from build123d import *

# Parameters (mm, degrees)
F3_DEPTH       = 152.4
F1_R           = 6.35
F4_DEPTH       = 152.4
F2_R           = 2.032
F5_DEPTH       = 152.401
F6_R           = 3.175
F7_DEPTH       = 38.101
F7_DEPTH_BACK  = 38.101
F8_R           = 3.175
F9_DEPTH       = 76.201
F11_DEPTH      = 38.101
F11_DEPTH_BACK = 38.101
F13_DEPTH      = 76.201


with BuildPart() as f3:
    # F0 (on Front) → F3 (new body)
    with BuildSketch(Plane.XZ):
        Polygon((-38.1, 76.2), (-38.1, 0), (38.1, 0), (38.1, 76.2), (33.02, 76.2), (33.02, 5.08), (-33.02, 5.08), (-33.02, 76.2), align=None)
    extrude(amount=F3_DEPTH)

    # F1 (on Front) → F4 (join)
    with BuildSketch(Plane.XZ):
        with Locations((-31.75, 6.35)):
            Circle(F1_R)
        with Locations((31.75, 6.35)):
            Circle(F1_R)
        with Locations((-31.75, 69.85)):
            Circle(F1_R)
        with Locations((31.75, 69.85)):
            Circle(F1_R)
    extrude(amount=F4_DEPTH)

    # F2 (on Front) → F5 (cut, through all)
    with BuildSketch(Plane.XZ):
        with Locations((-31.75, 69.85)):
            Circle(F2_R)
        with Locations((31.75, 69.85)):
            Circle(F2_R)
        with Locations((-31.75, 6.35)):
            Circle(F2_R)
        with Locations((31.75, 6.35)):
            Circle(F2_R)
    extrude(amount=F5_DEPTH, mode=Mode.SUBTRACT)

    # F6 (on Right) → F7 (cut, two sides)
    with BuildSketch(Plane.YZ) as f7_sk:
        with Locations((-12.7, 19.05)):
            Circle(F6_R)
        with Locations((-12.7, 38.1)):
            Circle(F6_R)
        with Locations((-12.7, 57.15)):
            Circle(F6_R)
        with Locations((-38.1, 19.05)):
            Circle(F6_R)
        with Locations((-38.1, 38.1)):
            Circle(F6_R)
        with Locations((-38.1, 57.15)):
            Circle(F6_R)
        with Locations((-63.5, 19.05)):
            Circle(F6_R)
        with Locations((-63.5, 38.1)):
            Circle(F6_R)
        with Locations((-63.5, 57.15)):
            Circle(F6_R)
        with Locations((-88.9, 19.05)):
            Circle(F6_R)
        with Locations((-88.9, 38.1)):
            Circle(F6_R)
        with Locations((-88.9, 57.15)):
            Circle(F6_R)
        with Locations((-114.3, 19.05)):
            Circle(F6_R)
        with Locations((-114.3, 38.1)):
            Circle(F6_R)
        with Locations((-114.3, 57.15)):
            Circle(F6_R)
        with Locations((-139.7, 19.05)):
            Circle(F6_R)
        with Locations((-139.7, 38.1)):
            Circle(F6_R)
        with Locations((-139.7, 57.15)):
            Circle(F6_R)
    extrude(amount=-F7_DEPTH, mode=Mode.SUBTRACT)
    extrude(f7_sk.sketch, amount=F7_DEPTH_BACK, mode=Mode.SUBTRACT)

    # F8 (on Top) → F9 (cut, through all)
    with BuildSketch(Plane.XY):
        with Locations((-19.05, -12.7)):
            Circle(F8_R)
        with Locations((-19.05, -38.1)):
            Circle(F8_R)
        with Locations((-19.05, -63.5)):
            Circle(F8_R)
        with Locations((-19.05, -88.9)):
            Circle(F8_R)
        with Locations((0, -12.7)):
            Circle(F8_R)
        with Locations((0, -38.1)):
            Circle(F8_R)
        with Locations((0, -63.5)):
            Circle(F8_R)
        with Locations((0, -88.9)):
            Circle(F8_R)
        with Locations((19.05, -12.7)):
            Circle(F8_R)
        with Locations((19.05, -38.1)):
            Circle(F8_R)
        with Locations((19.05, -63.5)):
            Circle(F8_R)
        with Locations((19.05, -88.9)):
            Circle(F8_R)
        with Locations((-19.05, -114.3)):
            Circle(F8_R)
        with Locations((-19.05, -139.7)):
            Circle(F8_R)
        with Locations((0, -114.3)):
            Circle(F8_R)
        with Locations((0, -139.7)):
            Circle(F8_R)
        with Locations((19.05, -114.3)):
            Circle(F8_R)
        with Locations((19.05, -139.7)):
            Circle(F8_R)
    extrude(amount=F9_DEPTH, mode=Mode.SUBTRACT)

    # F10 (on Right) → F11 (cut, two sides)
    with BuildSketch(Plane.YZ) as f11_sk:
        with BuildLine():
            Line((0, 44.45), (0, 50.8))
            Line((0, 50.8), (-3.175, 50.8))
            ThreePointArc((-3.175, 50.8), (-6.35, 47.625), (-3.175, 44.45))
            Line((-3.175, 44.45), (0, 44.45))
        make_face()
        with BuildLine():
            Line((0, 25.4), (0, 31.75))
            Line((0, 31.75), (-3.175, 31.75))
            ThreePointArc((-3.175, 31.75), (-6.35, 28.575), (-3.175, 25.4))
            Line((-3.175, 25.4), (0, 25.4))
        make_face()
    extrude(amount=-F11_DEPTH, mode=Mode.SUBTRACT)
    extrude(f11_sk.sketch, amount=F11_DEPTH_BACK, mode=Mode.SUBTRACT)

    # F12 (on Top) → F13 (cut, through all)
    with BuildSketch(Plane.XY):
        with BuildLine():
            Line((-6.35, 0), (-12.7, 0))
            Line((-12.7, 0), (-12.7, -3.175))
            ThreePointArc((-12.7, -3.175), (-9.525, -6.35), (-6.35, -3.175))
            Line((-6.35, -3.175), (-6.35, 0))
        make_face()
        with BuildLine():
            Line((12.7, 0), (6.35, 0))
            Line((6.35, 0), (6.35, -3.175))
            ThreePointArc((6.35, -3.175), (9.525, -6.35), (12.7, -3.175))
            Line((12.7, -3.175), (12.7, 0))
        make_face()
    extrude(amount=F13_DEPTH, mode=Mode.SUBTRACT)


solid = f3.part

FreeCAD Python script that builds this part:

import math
import FreeCAD as App
import Part
import Sketcher
from FreeCAD import Vector
Q = App.Units.Quantity

doc = App.newDocument("Part")
body = doc.addObject("PartDesign::Body", "Body")

sketch1 = body.newObject("Sketcher::SketchObject", "Sketch")
sketch1.AttachmentSupport = (doc.getObject("XZ_Plane"), [""])
sketch1.MapMode = "FlatFace"
sketch1.addGeometry([
    Part.LineSegment(Vector(-38, 76, 0), Vector(-38, 0, 0)),
    Part.LineSegment(Vector(-38, 0, 0), Vector(38, 0, 0)),
    Part.LineSegment(Vector(38, 0, 0), Vector(38, 76, 0)),
    Part.LineSegment(Vector(38, 76, 0), Vector(33, 76, 0)),
    Part.LineSegment(Vector(33, 76, 0), Vector(33, 5, 0)),
    Part.LineSegment(Vector(33, 5, 0), Vector(-33, 5, 0)),
    Part.LineSegment(Vector(-33, 5, 0), Vector(-33, 76, 0)),
    Part.LineSegment(Vector(-33, 76, 0), Vector(-38, 76, 0)),
], False)
sketch1.addConstraint([
    Sketcher.Constraint("Coincident", 0, 2, 1, 1),
    Sketcher.Constraint("Coincident", 1, 2, 2, 1),
    Sketcher.Constraint("Coincident", 2, 2, 3, 1),
    Sketcher.Constraint("Coincident", 3, 2, 4, 1),
    Sketcher.Constraint("Coincident", 4, 2, 5, 1),
    Sketcher.Constraint("Coincident", 5, 2, 6, 1),
    Sketcher.Constraint("Coincident", 6, 2, 7, 1),
    Sketcher.Constraint("Coincident", 7, 2, 0, 1),
    Sketcher.Constraint("Vertical", 0),
    Sketcher.Constraint("Horizontal", 1),
    Sketcher.Constraint("Vertical", 2),
    Sketcher.Constraint("Horizontal", 3),
    Sketcher.Constraint("Vertical", 4),
    Sketcher.Constraint("Horizontal", 5),
    Sketcher.Constraint("Vertical", 6),
    Sketcher.Constraint("Horizontal", 7),
    Sketcher.Constraint("Symmetric", 0, 2, 1, 2, -1, 1),
    Sketcher.Constraint("Symmetric", 3, 2, 6, 2, -2),
    Sketcher.Constraint("Equal", 1, 0),
    Sketcher.Constraint("DistanceX", 1, 1, 1, 2, Q("3 in")),
    Sketcher.Constraint("DistanceX", 3, 2, 3, 1, Q("0.2 in")),
    Sketcher.Constraint("DistanceY", 4, 2, 4, 1, Q("2.8 in")),
])
pad1 = body.newObject("PartDesign::Pad", "Pad")
pad1.Profile = sketch1
pad1.Length = Q("6 in")

sketch2 = body.newObject("Sketcher::SketchObject", "Sketch001")
sketch2.AttachmentSupport = (doc.getObject("XZ_Plane"), [""])
sketch2.MapMode = "FlatFace"
sketch2.addGeometry([
    Part.Circle(Vector(-32, 6, 0), Vector(0, 0, 1), 6),
    Part.Circle(Vector(32, 6, 0), Vector(0, 0, 1), 6),
    Part.Circle(Vector(-32, 70, 0), Vector(0, 0, 1), 6),
    Part.Circle(Vector(32, 70, 0), Vector(0, 0, 1), 6),
], False)
sketch2.addConstraint([
    Sketcher.Constraint("Equal", 0, 1),
    Sketcher.Constraint("Equal", 1, 2),
    Sketcher.Constraint("Equal", 2, 3),
    Sketcher.Constraint("Symmetric", 0, 3, 1, 3, -2),
    Sketcher.Constraint("Symmetric", 2, 3, 3, 3, -2),
    Sketcher.Constraint("Vertical", 0, 3, 2, 3),
    Sketcher.Constraint("Diameter", 0, Q("0.5 in")),
    Sketcher.Constraint("DistanceX", 0, 3, 1, 3, Q("2.5 in")),
    Sketcher.Constraint("DistanceY", 0, 3, 2, 3, Q("2.5 in")),
    Sketcher.Constraint("DistanceY", -1, 1, 0, 3, Q("0.25 in")),
])
pad2 = body.newObject("PartDesign::Pad", "Pad001")
pad2.Profile = sketch2
pad2.Length = Q("6 in")

sketch3 = body.newObject("Sketcher::SketchObject", "Sketch002")
sketch3.AttachmentSupport = (doc.getObject("XZ_Plane"), [""])
sketch3.MapMode = "FlatFace"
sketch3.addGeometry([
    Part.Circle(Vector(-31.8, 69.8, 0), Vector(0, 0, 1), 2),
    Part.Circle(Vector(31.8, 69.8, 0), Vector(0, 0, 1), 2),
    Part.Circle(Vector(-31.8, 6.3, 0), Vector(0, 0, 1), 2),
    Part.Circle(Vector(31.8, 6.3, 0), Vector(0, 0, 1), 2),
], False)
sketch3.addConstraint([
    Sketcher.Constraint("Equal", 0, 1),
    Sketcher.Constraint("Equal", 1, 2),
    Sketcher.Constraint("Equal", 2, 3),
    Sketcher.Constraint("Symmetric", 0, 3, 1, 3, -2),
    Sketcher.Constraint("Symmetric", 2, 3, 3, 3, -2),
    Sketcher.Constraint("Vertical", 0, 3, 2, 3),
    Sketcher.Constraint("Diameter", 0, Q("0.16 in")),
    Sketcher.Constraint("DistanceX", 0, 3, 1, 3, Q("2.5 in")),
    Sketcher.Constraint("DistanceY", 2, 3, 0, 3, Q("2.5 in")),
    Sketcher.Constraint("DistanceY", -1, 1, 0, 3, Q("2.75 in")),
])
pocket1 = body.newObject("PartDesign::Pocket", "Pocket")
pocket1.Profile = sketch3
pocket1.Type = "ThroughAll"
pocket1.Reversed = True

sketch4 = body.newObject("Sketcher::SketchObject", "Sketch003")
sketch4.AttachmentSupport = (doc.getObject("YZ_Plane"), [""])
sketch4.MapMode = "FlatFace"
sketch4.addGeometry([
    Part.Circle(Vector(-12.7, 19.1, 0), Vector(0, 0, 1), 3.2),
    Part.Circle(Vector(-12.7, 38.1, 0), Vector(0, 0, 1), 3.2),
    Part.Circle(Vector(-12.7, 57.1, 0), Vector(0, 0, 1), 3.2),
    Part.Circle(Vector(-38.1, 19.1, 0), Vector(0, 0, 1), 3.2),
    Part.Circle(Vector(-38.1, 38.1, 0), Vector(0, 0, 1), 3.2),
    Part.Circle(Vector(-38.1, 57.1, 0), Vector(0, 0, 1), 3.2),
    Part.Circle(Vector(-63.5, 19.1, 0), Vector(0, 0, 1), 3.2),
    Part.Circle(Vector(-63.5, 38.1, 0), Vector(0, 0, 1), 3.2),
    Part.Circle(Vector(-63.5, 57.1, 0), Vector(0, 0, 1), 3.2),
    Part.Circle(Vector(-88.9, 19.1, 0), Vector(0, 0, 1), 3.2),
    Part.Circle(Vector(-88.9, 38.1, 0), Vector(0, 0, 1), 3.2),
    Part.Circle(Vector(-88.9, 57.1, 0), Vector(0, 0, 1), 3.2),
    Part.Circle(Vector(-114.3, 19.1, 0), Vector(0, 0, 1), 3.2),
    Part.Circle(Vector(-114.3, 38.1, 0), Vector(0, 0, 1), 3.2),
    Part.Circle(Vector(-114.3, 57.1, 0), Vector(0, 0, 1), 3.2),
    Part.Circle(Vector(-139.7, 19.1, 0), Vector(0, 0, 1), 3.2),
    Part.Circle(Vector(-139.7, 38.1, 0), Vector(0, 0, 1), 3.2),
    Part.Circle(Vector(-139.7, 57.1, 0), Vector(0, 0, 1), 3.2),
], False)
sketch4.addConstraint([
    Sketcher.Constraint("Equal", 0, 1),
    Sketcher.Constraint("Equal", 1, 2),
    Sketcher.Constraint("Equal", 2, 3),
    Sketcher.Constraint("Equal", 3, 4),
    Sketcher.Constraint("Equal", 4, 5),
    Sketcher.Constraint("Equal", 5, 6),
    Sketcher.Constraint("Equal", 6, 7),
    Sketcher.Constraint("Equal", 7, 8),
    Sketcher.Constraint("Equal", 8, 9),
    Sketcher.Constraint("Equal", 9, 10),
    Sketcher.Constraint("Equal", 10, 11),
    Sketcher.Constraint("Equal", 11, 12),
    Sketcher.Constraint("Equal", 12, 13),
    Sketcher.Constraint("Equal", 13, 14),
    Sketcher.Constraint("Equal", 14, 15),
    Sketcher.Constraint("Equal", 15, 16),
    Sketcher.Constraint("Equal", 16, 17),
    Sketcher.Constraint("Horizontal", 0, 3, 3, 3),
    Sketcher.Constraint("Horizontal", 1, 3, 4, 3),
    Sketcher.Constraint("Horizontal", 2, 3, 5, 3),
    Sketcher.Constraint("Horizontal", 3, 3, 6, 3),
    Sketcher.Constraint("Horizontal", 4, 3, 7, 3),
    Sketcher.Constraint("Horizontal", 5, 3, 8, 3),
    Sketcher.Constraint("Horizontal", 6, 3, 9, 3),
    Sketcher.Constraint("Horizontal", 7, 3, 10, 3),
    Sketcher.Constraint("Horizontal", 8, 3, 11, 3),
    Sketcher.Constraint("Horizontal", 9, 3, 12, 3),
    Sketcher.Constraint("Horizontal", 10, 3, 13, 3),
    Sketcher.Constraint("Horizontal", 11, 3, 14, 3),
    Sketcher.Constraint("Horizontal", 12, 3, 15, 3),
    Sketcher.Constraint("Horizontal", 13, 3, 16, 3),
    Sketcher.Constraint("Horizontal", 14, 3, 17, 3),
    Sketcher.Constraint("Vertical", 0, 3, 1, 3),
    Sketcher.Constraint("Vertical", 1, 3, 2, 3),
    Sketcher.Constraint("Vertical", 3, 3, 4, 3),
    Sketcher.Constraint("Vertical", 4, 3, 5, 3),
    Sketcher.Constraint("Vertical", 6, 3, 7, 3),
    Sketcher.Constraint("Vertical", 7, 3, 8, 3),
    Sketcher.Constraint("Vertical", 9, 3, 10, 3),
    Sketcher.Constraint("Vertical", 10, 3, 11, 3),
    Sketcher.Constraint("Vertical", 12, 3, 13, 3),
    Sketcher.Constraint("Vertical", 13, 3, 14, 3),
    Sketcher.Constraint("Vertical", 15, 3, 16, 3),
    Sketcher.Constraint("Vertical", 16, 3, 17, 3),
    Sketcher.Constraint("Diameter", 0, Q("0.25 in")),
    Sketcher.Constraint("DistanceX", 3, 3, 0, 3, Q("1 in")),
    Sketcher.Constraint("DistanceX", 6, 3, 3, 3, Q("1 in")),
    Sketcher.Constraint("DistanceX", 9, 3, 6, 3, Q("1 in")),
    Sketcher.Constraint("DistanceX", 12, 3, 9, 3, Q("1 in")),
    Sketcher.Constraint("DistanceX", 15, 3, 12, 3, Q("1 in")),
    Sketcher.Constraint("DistanceX", 0, 3, -1, 1, Q("0.5 in")),
    Sketcher.Constraint("DistanceY", -1, 1, 1, 3, Q("1.5 in")),
    Sketcher.Constraint("DistanceY", 0, 3, 2, 3, Q("1.5 in")),
    Sketcher.Constraint("DistanceY", -1, 1, 0, 3, Q("0.75 in")),
])
pocket2 = body.newObject("PartDesign::Pocket", "Pocket001")
pocket2.Profile = sketch4
pocket2.Type = "ThroughAll"
pocket2.Midplane = True

sketch5 = body.newObject("Sketcher::SketchObject", "Sketch004")
sketch5.AttachmentSupport = (doc.getObject("XY_Plane"), [""])
sketch5.MapMode = "FlatFace"
sketch5.addGeometry([
    Part.Circle(Vector(-19.1, -12.7, 0), Vector(0, 0, 1), 3.2),
    Part.Circle(Vector(-19.1, -38.1, 0), Vector(0, 0, 1), 3.2),
    Part.Circle(Vector(-19.1, -63.5, 0), Vector(0, 0, 1), 3.2),
    Part.Circle(Vector(-19.1, -88.9, 0), Vector(0, 0, 1), 3.2),
    Part.Circle(Vector(0, -12.7, 0), Vector(0, 0, 1), 3.2),
    Part.Circle(Vector(0, -38.1, 0), Vector(0, 0, 1), 3.2),
    Part.Circle(Vector(0, -63.5, 0), Vector(0, 0, 1), 3.2),
    Part.Circle(Vector(0, -88.9, 0), Vector(0, 0, 1), 3.2),
    Part.Circle(Vector(19.1, -12.7, 0), Vector(0, 0, 1), 3.2),
    Part.Circle(Vector(19.1, -38.1, 0), Vector(0, 0, 1), 3.2),
    Part.Circle(Vector(19.1, -63.5, 0), Vector(0, 0, 1), 3.2),
    Part.Circle(Vector(19.1, -88.9, 0), Vector(0, 0, 1), 3.2),
    Part.Circle(Vector(-19.1, -114.3, 0), Vector(0, 0, 1), 3.2),
    Part.Circle(Vector(-19.1, -139.7, 0), Vector(0, 0, 1), 3.2),
    Part.Circle(Vector(0, -114.3, 0), Vector(0, 0, 1), 3.2),
    Part.Circle(Vector(0, -139.7, 0), Vector(0, 0, 1), 3.2),
    Part.Circle(Vector(19.1, -114.3, 0), Vector(0, 0, 1), 3.2),
    Part.Circle(Vector(19.1, -139.7, 0), Vector(0, 0, 1), 3.2),
], False)
sketch5.addConstraint([
    Sketcher.Constraint("Equal", 0, 1),
    Sketcher.Constraint("Equal", 1, 2),
    Sketcher.Constraint("Equal", 2, 3),
    Sketcher.Constraint("Equal", 3, 4),
    Sketcher.Constraint("Equal", 4, 5),
    Sketcher.Constraint("Equal", 5, 6),
    Sketcher.Constraint("Equal", 6, 7),
    Sketcher.Constraint("Equal", 7, 8),
    Sketcher.Constraint("Equal", 8, 9),
    Sketcher.Constraint("Equal", 9, 10),
    Sketcher.Constraint("Equal", 10, 11),
    Sketcher.Constraint("Equal", 11, 12),
    Sketcher.Constraint("Equal", 12, 13),
    Sketcher.Constraint("Equal", 13, 14),
    Sketcher.Constraint("Equal", 14, 15),
    Sketcher.Constraint("Equal", 15, 16),
    Sketcher.Constraint("Equal", 16, 17),
    Sketcher.Constraint("Symmetric", 0, 3, 8, 3, -2),
    Sketcher.Constraint("Symmetric", 1, 3, 9, 3, -2),
    Sketcher.Constraint("Symmetric", 2, 3, 10, 3, -2),
    Sketcher.Constraint("Symmetric", 3, 3, 11, 3, -2),
    Sketcher.Constraint("Symmetric", 12, 3, 16, 3, -2),
    Sketcher.Constraint("Symmetric", 13, 3, 17, 3, -2),
    Sketcher.Constraint("PointOnObject", 4, 3, -2),
    Sketcher.Constraint("PointOnObject", 5, 3, -2),
    Sketcher.Constraint("PointOnObject", 6, 3, -2),
    Sketcher.Constraint("PointOnObject", 7, 3, -2),
    Sketcher.Constraint("PointOnObject", 14, 3, -2),
    Sketcher.Constraint("PointOnObject", 15, 3, -2),
    Sketcher.Constraint("Horizontal", 0, 3, 4, 3),
    Sketcher.Constraint("Horizontal", 1, 3, 5, 3),
    Sketcher.Constraint("Horizontal", 2, 3, 6, 3),
    Sketcher.Constraint("Horizontal", 3, 3, 7, 3),
    Sketcher.Constraint("Horizontal", 12, 3, 14, 3),
    Sketcher.Constraint("Horizontal", 13, 3, 15, 3),
    Sketcher.Constraint("Vertical", 0, 3, 1, 3),
    Sketcher.Constraint("Vertical", 1, 3, 2, 3),
    Sketcher.Constraint("Vertical", 2, 3, 3, 3),
    Sketcher.Constraint("Vertical", 3, 3, 12, 3),
    Sketcher.Constraint("Vertical", 12, 3, 13, 3),
    Sketcher.Constraint("Diameter", 0, Q("0.25 in")),
    Sketcher.Constraint("DistanceY", 1, 3, 0, 3, Q("1 in")),
    Sketcher.Constraint("DistanceY", 2, 3, 1, 3, Q("1 in")),
    Sketcher.Constraint("DistanceY", 3, 3, 2, 3, Q("1 in")),
    Sketcher.Constraint("DistanceY", 12, 3, 3, 3, Q("1 in")),
    Sketcher.Constraint("DistanceY", 13, 3, 12, 3, Q("1 in")),
    Sketcher.Constraint("DistanceY", 0, 3, -1, 1, Q("0.5 in")),
    Sketcher.Constraint("DistanceX", 0, 3, 8, 3, Q("1.5 in")),
])
pocket3 = body.newObject("PartDesign::Pocket", "Pocket002")
pocket3.Profile = sketch5
pocket3.Type = "ThroughAll"
pocket3.Reversed = True

sketch6 = body.newObject("Sketcher::SketchObject", "Sketch005")
sketch6.AttachmentSupport = (doc.getObject("YZ_Plane"), [""])
sketch6.MapMode = "FlatFace"
sketch6.addGeometry([
    Part.LineSegment(Vector(0, 44.5, 0), Vector(0, 50.8, 0)),
    Part.LineSegment(Vector(0, 50.8, 0), Vector(-3.2, 50.8, 0)),
    Part.ArcOfCircle(Part.Circle(Vector(-3.2, 47.6, 0), Vector(0, 0, 1), 3.2), math.radians(90), math.radians(270)),
    Part.LineSegment(Vector(-3.2, 44.5, 0), Vector(0, 44.5, 0)),
    Part.LineSegment(Vector(0, 25.4, 0), Vector(0, 31.8, 0)),
    Part.LineSegment(Vector(0, 31.8, 0), Vector(-3.2, 31.8, 0)),
    Part.ArcOfCircle(Part.Circle(Vector(-3.2, 28.6, 0), Vector(0, 0, 1), 3.2), math.radians(90), math.radians(270)),
    Part.LineSegment(Vector(-3.2, 25.4, 0), Vector(0, 25.4, 0)),
], False)
sketch6.addConstraint([
    Sketcher.Constraint("Coincident", 0, 2, 1, 1),
    Sketcher.Constraint("Tangent", 1, 2, 2, 1),
    Sketcher.Constraint("Tangent", 2, 2, 3, 1),
    Sketcher.Constraint("Coincident", 3, 2, 0, 1),
    Sketcher.Constraint("Coincident", 4, 2, 5, 1),
    Sketcher.Constraint("Tangent", 5, 2, 6, 1),
    Sketcher.Constraint("Tangent", 6, 2, 7, 1),
    Sketcher.Constraint("Coincident", 7, 2, 4, 1),
    Sketcher.Constraint("Vertical", 0),
    Sketcher.Constraint("Horizontal", 1),
    Sketcher.Constraint("Horizontal", 3),
    Sketcher.Constraint("Vertical", 4),
    Sketcher.Constraint("Horizontal", 5),
    Sketcher.Constraint("Horizontal", 7),
    Sketcher.Constraint("Equal", 2, 6),
    Sketcher.Constraint("PointOnObject", 0, 2, -2),
    Sketcher.Constraint("PointOnObject", 4, 2, -2),
    Sketcher.Constraint("Vertical", 2, 3, 6, 3),
    Sketcher.Constraint("DistanceY", -1, 1, 0, 2, Q("2 in")),
    Sketcher.Constraint("DistanceY", -1, 1, 6, 2, Q("1 in")),
    Sketcher.Constraint("Radius", 2, Q("0.125 in")),
    Sketcher.Constraint("DistanceX", 1, 2, 1, 1, Q("0.125 in")),
])
pocket4 = body.newObject("PartDesign::Pocket", "Pocket003")
pocket4.Profile = sketch6
pocket4.Type = "ThroughAll"
pocket4.Midplane = True

sketch7 = body.newObject("Sketcher::SketchObject", "Sketch006")
sketch7.AttachmentSupport = (doc.getObject("XY_Plane"), [""])
sketch7.MapMode = "FlatFace"
sketch7.addGeometry([
    Part.LineSegment(Vector(-6.3, 0, 0), Vector(-12.7, 0, 0)),
    Part.LineSegment(Vector(-12.7, 0, 0), Vector(-12.7, -3.2, 0)),
    Part.ArcOfCircle(Part.Circle(Vector(-9.5, -3.2, 0), Vector(0, 0, 1), 3.2), math.radians(180), math.radians(360)),
    Part.LineSegment(Vector(-6.3, -3.2, 0), Vector(-6.3, 0, 0)),
    Part.LineSegment(Vector(12.7, 0, 0), Vector(6.3, 0, 0)),
    Part.LineSegment(Vector(6.3, 0, 0), Vector(6.3, -3.2, 0)),
    Part.ArcOfCircle(Part.Circle(Vector(9.5, -3.2, 0), Vector(0, 0, 1), 3.2), math.radians(180), math.radians(360)),
    Part.LineSegment(Vector(12.7, -3.2, 0), Vector(12.7, 0, 0)),
], False)
sketch7.addConstraint([
    Sketcher.Constraint("Coincident", 0, 2, 1, 1),
    Sketcher.Constraint("Tangent", 1, 2, 2, 1),
    Sketcher.Constraint("Tangent", 2, 2, 3, 1),
    Sketcher.Constraint("Coincident", 3, 2, 0, 1),
    Sketcher.Constraint("Coincident", 4, 2, 5, 1),
    Sketcher.Constraint("Tangent", 5, 2, 6, 1),
    Sketcher.Constraint("Tangent", 6, 2, 7, 1),
    Sketcher.Constraint("Coincident", 7, 2, 4, 1),
    Sketcher.Constraint("Horizontal", 0),
    Sketcher.Constraint("Vertical", 1),
    Sketcher.Constraint("Vertical", 3),
    Sketcher.Constraint("Horizontal", 4),
    Sketcher.Constraint("Vertical", 5),
    Sketcher.Constraint("Vertical", 7),
    Sketcher.Constraint("Equal", 2, 6),
    Sketcher.Constraint("Symmetric", 3, 2, 4, 2, -1, 1),
    Sketcher.Constraint("PointOnObject", 0, 2, -1),
    Sketcher.Constraint("Horizontal", 2, 3, 6, 3),
    Sketcher.Constraint("Radius", 2, Q("0.125 in")),
    Sketcher.Constraint("DistanceX", 0, 2, -1, 1, Q("0.5 in")),
    Sketcher.Constraint("DistanceY", 1, 2, 1, 1, Q("0.125 in")),
])
pocket5 = body.newObject("PartDesign::Pocket", "Pocket004")
pocket5.Profile = sketch7
pocket5.Type = "ThroughAll"
pocket5.Reversed = True

doc.recompute()
